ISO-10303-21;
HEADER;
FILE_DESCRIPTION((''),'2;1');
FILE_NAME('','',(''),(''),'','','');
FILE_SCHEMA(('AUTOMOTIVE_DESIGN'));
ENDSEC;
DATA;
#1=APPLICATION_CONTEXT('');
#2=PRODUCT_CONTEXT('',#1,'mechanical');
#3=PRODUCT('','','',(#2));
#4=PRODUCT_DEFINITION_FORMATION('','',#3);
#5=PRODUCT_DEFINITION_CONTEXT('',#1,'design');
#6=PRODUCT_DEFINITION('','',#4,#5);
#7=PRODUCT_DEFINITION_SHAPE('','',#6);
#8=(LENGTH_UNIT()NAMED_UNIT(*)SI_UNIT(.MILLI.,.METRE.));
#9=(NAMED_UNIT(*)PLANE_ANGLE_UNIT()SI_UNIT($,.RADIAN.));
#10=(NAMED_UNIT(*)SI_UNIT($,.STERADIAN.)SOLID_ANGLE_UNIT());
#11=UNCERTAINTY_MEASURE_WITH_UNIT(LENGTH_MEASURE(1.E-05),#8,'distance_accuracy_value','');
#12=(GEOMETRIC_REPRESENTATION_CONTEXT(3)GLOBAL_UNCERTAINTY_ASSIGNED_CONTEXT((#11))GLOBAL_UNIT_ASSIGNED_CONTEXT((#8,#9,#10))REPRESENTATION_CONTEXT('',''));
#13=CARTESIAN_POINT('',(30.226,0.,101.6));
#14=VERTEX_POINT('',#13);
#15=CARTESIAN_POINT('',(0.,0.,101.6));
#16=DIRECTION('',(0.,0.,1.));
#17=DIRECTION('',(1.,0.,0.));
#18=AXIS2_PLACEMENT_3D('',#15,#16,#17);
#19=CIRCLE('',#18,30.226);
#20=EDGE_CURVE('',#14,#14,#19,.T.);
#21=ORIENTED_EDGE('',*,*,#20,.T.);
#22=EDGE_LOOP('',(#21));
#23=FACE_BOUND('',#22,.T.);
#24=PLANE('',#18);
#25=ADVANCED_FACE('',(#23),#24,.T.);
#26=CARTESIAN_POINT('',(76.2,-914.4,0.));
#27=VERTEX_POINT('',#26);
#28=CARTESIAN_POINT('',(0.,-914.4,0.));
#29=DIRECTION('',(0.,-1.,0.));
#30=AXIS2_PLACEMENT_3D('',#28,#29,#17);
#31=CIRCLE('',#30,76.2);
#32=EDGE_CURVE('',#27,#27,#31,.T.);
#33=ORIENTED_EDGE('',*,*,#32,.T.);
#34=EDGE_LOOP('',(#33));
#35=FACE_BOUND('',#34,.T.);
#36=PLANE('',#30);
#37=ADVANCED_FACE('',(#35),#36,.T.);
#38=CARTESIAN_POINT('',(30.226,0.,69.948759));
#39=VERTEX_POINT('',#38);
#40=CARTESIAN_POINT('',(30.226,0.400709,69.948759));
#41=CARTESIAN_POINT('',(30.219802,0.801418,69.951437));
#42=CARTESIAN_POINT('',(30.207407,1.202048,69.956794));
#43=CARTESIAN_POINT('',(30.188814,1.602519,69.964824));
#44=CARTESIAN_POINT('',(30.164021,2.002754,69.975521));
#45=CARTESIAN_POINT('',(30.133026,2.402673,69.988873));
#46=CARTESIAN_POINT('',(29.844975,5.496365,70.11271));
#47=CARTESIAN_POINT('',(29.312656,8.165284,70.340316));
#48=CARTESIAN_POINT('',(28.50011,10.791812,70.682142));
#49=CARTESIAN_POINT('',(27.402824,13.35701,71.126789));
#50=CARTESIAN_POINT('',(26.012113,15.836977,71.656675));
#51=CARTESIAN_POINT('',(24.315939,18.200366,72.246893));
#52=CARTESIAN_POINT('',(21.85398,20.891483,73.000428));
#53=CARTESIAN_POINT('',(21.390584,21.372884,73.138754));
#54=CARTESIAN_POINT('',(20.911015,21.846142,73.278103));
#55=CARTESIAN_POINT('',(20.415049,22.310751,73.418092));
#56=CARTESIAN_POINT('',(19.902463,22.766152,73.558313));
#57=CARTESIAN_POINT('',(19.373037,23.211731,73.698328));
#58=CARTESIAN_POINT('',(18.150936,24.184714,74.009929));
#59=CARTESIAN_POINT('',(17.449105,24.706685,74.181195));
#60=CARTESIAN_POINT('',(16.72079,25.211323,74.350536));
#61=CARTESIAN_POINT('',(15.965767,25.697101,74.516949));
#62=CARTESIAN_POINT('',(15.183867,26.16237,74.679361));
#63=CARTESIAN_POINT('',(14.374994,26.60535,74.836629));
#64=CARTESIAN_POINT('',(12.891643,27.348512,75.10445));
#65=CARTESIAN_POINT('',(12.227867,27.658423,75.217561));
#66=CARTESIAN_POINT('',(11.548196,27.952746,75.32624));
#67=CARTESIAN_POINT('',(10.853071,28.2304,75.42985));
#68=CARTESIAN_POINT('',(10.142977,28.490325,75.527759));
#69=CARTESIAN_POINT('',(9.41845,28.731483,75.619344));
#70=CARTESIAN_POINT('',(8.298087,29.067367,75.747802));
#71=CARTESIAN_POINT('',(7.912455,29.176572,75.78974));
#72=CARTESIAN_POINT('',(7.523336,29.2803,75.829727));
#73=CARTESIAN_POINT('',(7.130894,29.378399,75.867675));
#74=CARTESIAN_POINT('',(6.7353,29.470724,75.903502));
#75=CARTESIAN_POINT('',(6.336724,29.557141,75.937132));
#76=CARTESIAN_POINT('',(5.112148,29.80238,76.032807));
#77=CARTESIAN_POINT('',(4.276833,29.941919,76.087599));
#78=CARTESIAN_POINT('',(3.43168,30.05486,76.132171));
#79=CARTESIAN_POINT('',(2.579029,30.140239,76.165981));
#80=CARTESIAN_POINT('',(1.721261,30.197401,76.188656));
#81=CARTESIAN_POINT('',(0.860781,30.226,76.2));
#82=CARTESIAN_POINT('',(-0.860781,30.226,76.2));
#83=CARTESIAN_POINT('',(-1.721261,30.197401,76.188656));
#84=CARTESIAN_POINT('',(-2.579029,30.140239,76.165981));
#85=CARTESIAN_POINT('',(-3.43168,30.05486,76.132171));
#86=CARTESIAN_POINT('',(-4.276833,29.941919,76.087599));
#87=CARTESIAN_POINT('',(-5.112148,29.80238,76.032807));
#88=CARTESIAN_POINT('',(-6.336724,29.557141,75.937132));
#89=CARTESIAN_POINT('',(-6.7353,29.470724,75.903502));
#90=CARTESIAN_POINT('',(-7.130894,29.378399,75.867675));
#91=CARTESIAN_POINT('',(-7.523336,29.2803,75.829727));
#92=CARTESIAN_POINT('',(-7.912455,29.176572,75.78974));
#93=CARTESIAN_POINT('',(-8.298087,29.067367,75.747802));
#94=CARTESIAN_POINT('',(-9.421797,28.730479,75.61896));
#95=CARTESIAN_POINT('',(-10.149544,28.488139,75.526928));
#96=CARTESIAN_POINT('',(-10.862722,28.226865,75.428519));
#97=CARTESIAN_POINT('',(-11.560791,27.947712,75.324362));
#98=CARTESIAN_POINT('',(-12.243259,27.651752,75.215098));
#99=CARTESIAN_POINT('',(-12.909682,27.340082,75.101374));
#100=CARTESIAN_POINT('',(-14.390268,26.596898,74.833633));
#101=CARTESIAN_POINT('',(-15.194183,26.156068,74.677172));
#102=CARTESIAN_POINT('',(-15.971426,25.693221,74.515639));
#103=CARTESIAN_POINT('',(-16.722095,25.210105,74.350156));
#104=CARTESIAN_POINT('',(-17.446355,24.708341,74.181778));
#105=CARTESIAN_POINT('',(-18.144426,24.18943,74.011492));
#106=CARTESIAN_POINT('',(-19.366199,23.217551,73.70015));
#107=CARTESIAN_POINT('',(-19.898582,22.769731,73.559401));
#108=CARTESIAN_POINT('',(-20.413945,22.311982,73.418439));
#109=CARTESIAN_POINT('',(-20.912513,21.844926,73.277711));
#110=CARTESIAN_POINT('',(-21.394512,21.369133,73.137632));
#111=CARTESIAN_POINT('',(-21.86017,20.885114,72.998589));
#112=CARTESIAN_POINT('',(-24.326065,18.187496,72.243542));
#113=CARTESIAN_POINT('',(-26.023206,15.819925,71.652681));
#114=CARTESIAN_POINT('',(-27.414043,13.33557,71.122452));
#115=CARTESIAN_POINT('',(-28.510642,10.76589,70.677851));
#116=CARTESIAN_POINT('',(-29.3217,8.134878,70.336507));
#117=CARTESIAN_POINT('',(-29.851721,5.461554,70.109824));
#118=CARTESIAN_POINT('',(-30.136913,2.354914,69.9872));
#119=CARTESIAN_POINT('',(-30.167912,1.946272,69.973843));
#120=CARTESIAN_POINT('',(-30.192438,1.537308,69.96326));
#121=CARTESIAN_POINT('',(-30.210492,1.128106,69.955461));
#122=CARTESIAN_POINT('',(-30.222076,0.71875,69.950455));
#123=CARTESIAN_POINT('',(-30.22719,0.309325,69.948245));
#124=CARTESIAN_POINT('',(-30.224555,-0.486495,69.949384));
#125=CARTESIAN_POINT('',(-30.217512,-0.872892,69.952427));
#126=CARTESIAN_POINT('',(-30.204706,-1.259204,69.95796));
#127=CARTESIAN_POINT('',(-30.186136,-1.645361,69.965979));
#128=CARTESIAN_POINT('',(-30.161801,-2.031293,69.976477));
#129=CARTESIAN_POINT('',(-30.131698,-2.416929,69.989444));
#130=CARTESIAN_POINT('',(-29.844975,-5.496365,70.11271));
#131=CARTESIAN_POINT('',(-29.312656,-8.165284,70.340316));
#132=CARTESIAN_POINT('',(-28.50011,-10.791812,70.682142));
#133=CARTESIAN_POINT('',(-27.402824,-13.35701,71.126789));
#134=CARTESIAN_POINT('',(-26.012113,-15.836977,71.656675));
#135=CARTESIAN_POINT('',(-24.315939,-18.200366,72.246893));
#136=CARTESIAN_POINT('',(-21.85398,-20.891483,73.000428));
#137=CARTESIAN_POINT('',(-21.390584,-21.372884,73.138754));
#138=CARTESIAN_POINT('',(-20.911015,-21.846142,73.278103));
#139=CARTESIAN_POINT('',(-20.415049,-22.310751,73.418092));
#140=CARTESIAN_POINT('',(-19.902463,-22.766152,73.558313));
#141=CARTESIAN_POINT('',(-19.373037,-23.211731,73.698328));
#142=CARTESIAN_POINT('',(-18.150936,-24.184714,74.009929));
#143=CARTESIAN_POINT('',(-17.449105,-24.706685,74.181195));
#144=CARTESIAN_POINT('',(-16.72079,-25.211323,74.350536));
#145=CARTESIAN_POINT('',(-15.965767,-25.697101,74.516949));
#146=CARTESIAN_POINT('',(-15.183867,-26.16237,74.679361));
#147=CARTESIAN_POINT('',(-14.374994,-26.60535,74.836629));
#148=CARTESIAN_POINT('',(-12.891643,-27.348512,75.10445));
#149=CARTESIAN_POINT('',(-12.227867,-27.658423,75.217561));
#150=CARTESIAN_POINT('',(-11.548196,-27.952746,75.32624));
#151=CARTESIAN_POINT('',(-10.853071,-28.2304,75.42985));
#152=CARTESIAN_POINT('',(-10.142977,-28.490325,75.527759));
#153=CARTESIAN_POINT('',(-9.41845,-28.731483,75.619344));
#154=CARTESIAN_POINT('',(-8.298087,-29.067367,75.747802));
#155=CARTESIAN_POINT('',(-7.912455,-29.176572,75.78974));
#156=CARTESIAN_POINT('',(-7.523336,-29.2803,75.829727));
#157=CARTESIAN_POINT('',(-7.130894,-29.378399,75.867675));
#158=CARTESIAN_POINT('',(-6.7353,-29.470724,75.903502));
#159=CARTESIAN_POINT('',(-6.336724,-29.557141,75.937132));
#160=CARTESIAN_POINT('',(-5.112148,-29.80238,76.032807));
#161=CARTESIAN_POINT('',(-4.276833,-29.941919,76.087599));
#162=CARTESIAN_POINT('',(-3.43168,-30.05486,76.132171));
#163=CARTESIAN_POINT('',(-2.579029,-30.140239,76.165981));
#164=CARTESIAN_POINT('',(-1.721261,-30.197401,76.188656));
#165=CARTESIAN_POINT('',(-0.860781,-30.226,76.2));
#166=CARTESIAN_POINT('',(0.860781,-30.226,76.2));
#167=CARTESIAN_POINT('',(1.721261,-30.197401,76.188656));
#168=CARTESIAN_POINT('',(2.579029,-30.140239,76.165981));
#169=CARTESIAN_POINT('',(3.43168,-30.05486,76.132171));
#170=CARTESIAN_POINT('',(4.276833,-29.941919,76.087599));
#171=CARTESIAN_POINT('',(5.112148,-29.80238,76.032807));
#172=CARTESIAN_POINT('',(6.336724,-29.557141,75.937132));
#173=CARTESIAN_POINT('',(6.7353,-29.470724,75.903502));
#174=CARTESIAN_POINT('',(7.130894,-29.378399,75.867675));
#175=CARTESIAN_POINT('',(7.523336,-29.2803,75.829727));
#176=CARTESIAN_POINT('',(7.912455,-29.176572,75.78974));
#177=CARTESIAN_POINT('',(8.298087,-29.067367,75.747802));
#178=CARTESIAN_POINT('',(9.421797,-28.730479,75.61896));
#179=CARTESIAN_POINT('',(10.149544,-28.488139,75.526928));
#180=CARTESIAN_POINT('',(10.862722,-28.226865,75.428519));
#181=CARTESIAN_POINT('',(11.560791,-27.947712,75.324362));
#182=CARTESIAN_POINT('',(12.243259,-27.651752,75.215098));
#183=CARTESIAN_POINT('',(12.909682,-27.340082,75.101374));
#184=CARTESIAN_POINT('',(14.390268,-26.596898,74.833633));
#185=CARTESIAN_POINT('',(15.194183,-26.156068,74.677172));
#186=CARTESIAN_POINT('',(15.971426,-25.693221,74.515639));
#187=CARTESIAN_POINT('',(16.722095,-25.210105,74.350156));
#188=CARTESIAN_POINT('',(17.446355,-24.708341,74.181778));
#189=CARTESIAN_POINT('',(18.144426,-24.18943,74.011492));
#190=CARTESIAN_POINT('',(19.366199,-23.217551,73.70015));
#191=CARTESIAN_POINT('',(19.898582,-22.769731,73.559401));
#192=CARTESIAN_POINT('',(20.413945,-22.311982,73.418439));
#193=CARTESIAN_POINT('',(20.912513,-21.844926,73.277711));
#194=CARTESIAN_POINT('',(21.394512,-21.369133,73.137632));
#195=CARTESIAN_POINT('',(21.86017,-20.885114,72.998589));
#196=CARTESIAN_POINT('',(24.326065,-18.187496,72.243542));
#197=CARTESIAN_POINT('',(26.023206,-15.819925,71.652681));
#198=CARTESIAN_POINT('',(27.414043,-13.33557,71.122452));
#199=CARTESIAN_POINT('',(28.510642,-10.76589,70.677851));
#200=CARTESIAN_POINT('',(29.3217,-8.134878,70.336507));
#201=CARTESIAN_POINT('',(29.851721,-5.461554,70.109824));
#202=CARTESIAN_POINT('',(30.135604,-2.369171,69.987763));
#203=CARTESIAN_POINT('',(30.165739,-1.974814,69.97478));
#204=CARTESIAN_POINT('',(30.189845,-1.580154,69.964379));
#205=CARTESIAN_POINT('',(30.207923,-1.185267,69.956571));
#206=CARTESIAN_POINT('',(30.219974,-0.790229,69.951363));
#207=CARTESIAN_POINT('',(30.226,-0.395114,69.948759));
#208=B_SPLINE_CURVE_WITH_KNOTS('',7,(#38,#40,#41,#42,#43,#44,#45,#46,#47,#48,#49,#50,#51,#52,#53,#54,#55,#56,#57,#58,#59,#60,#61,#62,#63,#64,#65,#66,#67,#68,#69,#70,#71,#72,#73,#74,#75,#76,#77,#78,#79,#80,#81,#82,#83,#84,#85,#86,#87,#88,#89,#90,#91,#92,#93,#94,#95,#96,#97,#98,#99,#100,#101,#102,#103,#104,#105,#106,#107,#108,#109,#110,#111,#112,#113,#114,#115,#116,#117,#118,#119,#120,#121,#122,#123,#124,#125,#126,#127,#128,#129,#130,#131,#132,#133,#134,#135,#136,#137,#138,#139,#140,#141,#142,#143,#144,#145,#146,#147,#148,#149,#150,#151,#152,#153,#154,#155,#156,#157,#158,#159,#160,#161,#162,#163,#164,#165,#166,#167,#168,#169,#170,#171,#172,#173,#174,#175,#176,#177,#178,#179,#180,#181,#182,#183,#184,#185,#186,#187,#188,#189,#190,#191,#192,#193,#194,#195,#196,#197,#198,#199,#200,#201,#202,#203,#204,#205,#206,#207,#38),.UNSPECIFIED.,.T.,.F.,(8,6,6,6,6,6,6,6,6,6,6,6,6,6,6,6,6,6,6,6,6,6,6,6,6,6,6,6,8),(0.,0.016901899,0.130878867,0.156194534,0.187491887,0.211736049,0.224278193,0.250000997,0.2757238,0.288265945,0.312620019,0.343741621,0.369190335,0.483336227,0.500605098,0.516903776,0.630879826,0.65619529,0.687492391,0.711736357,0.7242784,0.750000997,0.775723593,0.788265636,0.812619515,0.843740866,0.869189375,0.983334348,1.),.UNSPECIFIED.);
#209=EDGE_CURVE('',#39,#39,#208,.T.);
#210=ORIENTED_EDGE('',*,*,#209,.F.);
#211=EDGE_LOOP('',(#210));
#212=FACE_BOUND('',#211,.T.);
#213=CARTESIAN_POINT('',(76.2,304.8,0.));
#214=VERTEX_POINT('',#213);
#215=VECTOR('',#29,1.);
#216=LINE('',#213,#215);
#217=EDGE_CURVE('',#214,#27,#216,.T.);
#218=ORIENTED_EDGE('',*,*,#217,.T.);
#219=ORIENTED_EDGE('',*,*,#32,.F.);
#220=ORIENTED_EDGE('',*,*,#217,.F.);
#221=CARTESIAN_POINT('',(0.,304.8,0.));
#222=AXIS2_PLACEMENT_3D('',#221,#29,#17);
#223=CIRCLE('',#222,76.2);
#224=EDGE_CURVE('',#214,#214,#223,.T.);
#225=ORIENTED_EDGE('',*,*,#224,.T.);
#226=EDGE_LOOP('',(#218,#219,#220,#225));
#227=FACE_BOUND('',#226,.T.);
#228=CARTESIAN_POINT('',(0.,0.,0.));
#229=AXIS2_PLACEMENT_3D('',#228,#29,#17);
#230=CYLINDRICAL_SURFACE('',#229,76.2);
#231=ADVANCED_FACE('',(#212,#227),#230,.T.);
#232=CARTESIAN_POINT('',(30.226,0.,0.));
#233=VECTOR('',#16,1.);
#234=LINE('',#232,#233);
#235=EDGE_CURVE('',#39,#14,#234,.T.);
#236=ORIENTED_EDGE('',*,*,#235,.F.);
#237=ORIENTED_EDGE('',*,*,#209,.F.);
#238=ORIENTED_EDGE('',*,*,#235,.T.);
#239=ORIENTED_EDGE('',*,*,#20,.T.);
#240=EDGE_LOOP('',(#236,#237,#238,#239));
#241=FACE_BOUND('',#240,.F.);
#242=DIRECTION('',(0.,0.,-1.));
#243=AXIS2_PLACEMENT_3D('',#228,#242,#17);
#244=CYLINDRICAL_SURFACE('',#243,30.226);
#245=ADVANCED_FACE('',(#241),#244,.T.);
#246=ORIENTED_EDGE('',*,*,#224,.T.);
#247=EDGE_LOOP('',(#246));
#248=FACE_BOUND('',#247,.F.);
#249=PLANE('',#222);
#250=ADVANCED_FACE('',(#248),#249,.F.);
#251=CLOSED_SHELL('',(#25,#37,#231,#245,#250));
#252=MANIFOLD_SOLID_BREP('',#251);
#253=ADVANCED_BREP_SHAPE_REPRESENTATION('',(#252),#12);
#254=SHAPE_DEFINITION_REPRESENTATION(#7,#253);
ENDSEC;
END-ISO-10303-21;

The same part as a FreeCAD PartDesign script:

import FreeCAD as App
import Part
import Sketcher
Q = App.Units.Quantity

doc = App.newDocument("Part")
body = doc.addObject("PartDesign::Body", "Body")

# Sketch on XZ plane
sketch1 = body.newObject("Sketcher::SketchObject", "Sketch")
sketch1.AttachmentSupport = (doc.getObject("XZ_Plane"), [""])
sketch1.MapMode = "FlatFace"
sketch1.addGeometry(Part.Circle(App.Vector(0, 0, 0), App.Vector(0, 0, 1), 76.2), False)
sketch1.addConstraint(Sketcher.Constraint("Coincident", 0, 3, -1, 1))
sketch1.addConstraint(Sketcher.Constraint("Diameter", 0, Q("6 in")))
pad1 = body.newObject("PartDesign::Pad", "Pad")
pad1.Profile = sketch1
pad1.Type = "TwoLengths"
pad1.Length = Q("36 in")
pad1.Length2 = Q("12 in")

# Sketch on XY plane
sketch2 = body.newObject("Sketcher::SketchObject", "Sketch001")
sketch2.AttachmentSupport = (doc.getObject("XY_Plane"), [""])
sketch2.MapMode = "FlatFace"
sketch2.addGeometry(Part.Circle(App.Vector(0, 0, 0), App.Vector(0, 0, 1), 30.226), False)
sketch2.addConstraint(Sketcher.Constraint("Coincident", 0, 3, -1, 1))
sketch2.addConstraint(Sketcher.Constraint("Diameter", 0, Q("2.38 in")))
pad2 = body.newObject("PartDesign::Pad", "Pad001")
pad2.Profile = sketch2
pad2.Length = Q("4 in")

doc.recompute()
